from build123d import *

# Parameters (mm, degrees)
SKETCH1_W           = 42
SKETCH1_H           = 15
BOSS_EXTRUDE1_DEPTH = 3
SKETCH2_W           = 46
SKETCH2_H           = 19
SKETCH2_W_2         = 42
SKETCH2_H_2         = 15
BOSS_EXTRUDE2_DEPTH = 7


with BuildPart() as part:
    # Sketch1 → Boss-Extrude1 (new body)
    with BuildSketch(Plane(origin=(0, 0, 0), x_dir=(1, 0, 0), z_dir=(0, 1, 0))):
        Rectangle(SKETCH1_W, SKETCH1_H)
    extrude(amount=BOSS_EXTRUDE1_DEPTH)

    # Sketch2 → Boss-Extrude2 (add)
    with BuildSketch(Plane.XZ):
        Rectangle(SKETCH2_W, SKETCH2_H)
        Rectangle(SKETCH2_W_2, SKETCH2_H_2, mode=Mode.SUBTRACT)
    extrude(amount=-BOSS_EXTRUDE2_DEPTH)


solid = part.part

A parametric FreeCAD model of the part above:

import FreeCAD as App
import Part
import Sketcher

V = App.Vector

doc = App.newDocument("Part")
body = doc.addObject("PartDesign::Body", "Body")

# Sketch on XZ plane
sketch1 = doc.addObject("Sketcher::SketchObject", "Sketch")
body.addObject(sketch1)
sketch1.AttachmentSupport = (doc.XZ_Plane, [""])
sketch1.MapMode = "FlatFace"
sketch1.addGeometry([
    Part.LineSegment(V(-21, -8, 0), V(-21, 8, 0)),
    Part.LineSegment(V(-21, 8, 0), V(21, 8, 0)),
    Part.LineSegment(V(21, 8, 0), V(21, -8, 0)),
    Part.LineSegment(V(21, -8, 0), V(-21, -8, 0)),
], False)
sketch1.addConstraint([
    Sketcher.Constraint("Coincident", 0, 2, 1, 1),
    Sketcher.Constraint("Coincident", 1, 2, 2, 1),
    Sketcher.Constraint("Coincident", 2, 2, 3, 1),
    Sketcher.Constraint("Coincident", 3, 2, 0, 1),
    Sketcher.Constraint("Vertical", 0),
    Sketcher.Constraint("Horizontal", 1),
    Sketcher.Constraint("Vertical", 2),
    Sketcher.Constraint("Horizontal", 3),
    Sketcher.Constraint("Symmetric", 0, 2, 2, 2, -1, 1),
    Sketcher.Constraint("DistanceX", 1, 1, 1, 2, 42.0),
    Sketcher.Constraint("DistanceY", 0, 1, 0, 2, 15.0),
])
pad1 = doc.addObject("PartDesign::Pad", "Pad")
body.addObject(pad1)
pad1.Profile = sketch1
pad1.Length = 3
pad1.Reversed = True

# Sketch on XZ plane
sketch2 = doc.addObject("Sketcher::SketchObject", "Sketch001")
body.addObject(sketch2)
sketch2.AttachmentSupport = (doc.XZ_Plane, [""])
sketch2.MapMode = "FlatFace"
sketch2.addGeometry([
    Part.LineSegment(V(-23, 10, 0), V(-23, -10, 0)),  # 0
    Part.LineSegment(V(-23, -10, 0), V(23, -10, 0)),  # 1
    Part.LineSegment(V(23, -10, 0), V(23, 10, 0)),  # 2
    Part.LineSegment(V(23, 10, 0), V(-23, 10, 0)),  # 3
    Part.LineSegment(V(21, -8, 0), V(-21, -8, 0)),  # 4
    Part.LineSegment(V(-21, -8, 0), V(-21, 8, 0)),  # 5
    Part.LineSegment(V(-21, 8, 0), V(21, 8, 0)),  # 6
    Part.LineSegment(V(21, 8, 0), V(21, -8, 0)),  # 7
], False)
sketch2.addConstraint([
    Sketcher.Constraint("Coincident", 0, 2, 1, 1),
    Sketcher.Constraint("Coincident", 1, 2, 2, 1),
    Sketcher.Constraint("Coincident", 2, 2, 3, 1),
    Sketcher.Constraint("Coincident", 3, 2, 0, 1),
    Sketcher.Constraint("Coincident", 4, 2, 5, 1),
    Sketcher.Constraint("Coincident", 5, 2, 6, 1),
    Sketcher.Constraint("Coincident", 6, 2, 7, 1),
    Sketcher.Constraint("Coincident", 7, 2, 4, 1),
    Sketcher.Constraint("Vertical", 0),
    Sketcher.Constraint("Horizontal", 1),
    Sketcher.Constraint("Vertical", 2),
    Sketcher.Constraint("Horizontal", 3),
    Sketcher.Constraint("Horizontal", 4),
    Sketcher.Constraint("Vertical", 5),
    Sketcher.Constraint("Horizontal", 6),
    Sketcher.Constraint("Vertical", 7),
    Sketcher.Constraint("Symmetric", 0, 2, 2, 2, -1, 1),
    Sketcher.Constraint("Symmetric", 4, 2, 6, 2, -1, 1),
    Sketcher.Constraint("DistanceX", 1, 1, 1, 2, 46.0),
    Sketcher.Constraint("DistanceX", 4, 2, 4, 1, 42.0),
    Sketcher.Constraint("DistanceY", 0, 2, 0, 1, 19.0),
    Sketcher.Constraint("DistanceY", 5, 1, 5, 2, 15.0),
])
pad2 = doc.addObject("PartDesign::Pad", "Pad001")
body.addObject(pad2)
pad2.Profile = sketch2
pad2.Length = 7
pad2.Reversed = True

doc.recompute()
